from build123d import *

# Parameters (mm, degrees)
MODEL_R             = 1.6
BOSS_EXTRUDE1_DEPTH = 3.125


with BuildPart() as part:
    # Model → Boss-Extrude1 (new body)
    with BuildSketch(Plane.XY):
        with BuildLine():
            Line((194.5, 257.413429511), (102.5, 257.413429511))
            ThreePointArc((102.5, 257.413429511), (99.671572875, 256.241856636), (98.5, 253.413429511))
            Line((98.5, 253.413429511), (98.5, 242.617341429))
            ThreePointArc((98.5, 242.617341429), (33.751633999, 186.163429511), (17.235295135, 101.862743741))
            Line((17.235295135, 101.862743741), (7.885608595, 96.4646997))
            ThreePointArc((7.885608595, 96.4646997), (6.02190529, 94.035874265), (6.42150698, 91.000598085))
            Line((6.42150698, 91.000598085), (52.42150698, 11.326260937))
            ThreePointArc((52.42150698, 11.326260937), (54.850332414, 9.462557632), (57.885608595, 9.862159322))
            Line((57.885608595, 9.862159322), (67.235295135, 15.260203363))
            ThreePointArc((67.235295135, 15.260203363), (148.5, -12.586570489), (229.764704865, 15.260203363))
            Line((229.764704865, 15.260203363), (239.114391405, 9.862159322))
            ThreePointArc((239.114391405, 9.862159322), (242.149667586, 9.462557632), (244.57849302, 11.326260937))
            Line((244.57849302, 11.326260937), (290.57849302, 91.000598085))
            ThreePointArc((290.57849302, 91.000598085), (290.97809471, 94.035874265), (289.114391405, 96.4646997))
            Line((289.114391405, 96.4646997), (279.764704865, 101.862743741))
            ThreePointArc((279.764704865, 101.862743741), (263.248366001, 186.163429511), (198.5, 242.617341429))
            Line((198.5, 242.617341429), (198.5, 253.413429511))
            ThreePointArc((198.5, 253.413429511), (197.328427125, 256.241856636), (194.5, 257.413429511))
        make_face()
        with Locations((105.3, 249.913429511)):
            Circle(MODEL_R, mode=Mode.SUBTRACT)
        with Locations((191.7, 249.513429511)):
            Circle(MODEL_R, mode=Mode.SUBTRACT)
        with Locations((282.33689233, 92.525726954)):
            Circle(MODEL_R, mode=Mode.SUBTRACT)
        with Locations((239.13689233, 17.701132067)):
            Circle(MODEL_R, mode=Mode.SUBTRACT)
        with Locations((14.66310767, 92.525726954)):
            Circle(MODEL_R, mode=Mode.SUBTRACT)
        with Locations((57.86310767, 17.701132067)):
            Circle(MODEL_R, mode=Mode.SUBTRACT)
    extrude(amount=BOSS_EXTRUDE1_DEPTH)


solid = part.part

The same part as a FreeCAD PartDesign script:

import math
import FreeCAD as App
import Part
import Sketcher
Q = App.Units.Quantity

doc = App.newDocument("Part")
body = doc.addObject("PartDesign::Body", "Body")

# Sketch on XY plane
sketch1 = body.newObject("Sketcher::SketchObject", "Sketch")
sketch1.AttachmentSupport = (doc.getObject("XY_Plane"), [""])
sketch1.MapMode = "FlatFace"
sketch1.addGeometry([
    Part.LineSegment(App.Vector(194.5, 257.4, 0), App.Vector(102.5, 257.4, 0)),  # 0
    Part.ArcOfCircle(Part.Circle(App.Vector(102.5, 253.4, 0), App.Vector(0, 0, 1), 4), math.radians(90), math.radians(180)),  # 1
    Part.LineSegment(App.Vector(98.5, 253.4, 0), App.Vector(98.5, 242.6, 0)),  # 2
    Part.ArcOfCircle(Part.Circle(App.Vector(148.5, 119.9, 0), App.Vector(0, 0, 1), 132.5), math.radians(112), math.radians(188)),  # 3
    Part.LineSegment(App.Vector(17.2, 101.9, 0), App.Vector(7.9, 96.5, 0)),  # 4
    Part.ArcOfCircle(Part.Circle(App.Vector(9.9, 93, 0), App.Vector(0, 0, 1), 4), math.radians(120), math.radians(210)),  # 5
    Part.LineSegment(App.Vector(6.4, 91, 0), App.Vector(52.4, 11.3, 0)),  # 6
    Part.ArcOfCircle(Part.Circle(App.Vector(55.9, 13.3, 0), App.Vector(0, 0, 1), 4), math.radians(-150), math.radians(-60)),  # 7
    Part.LineSegment(App.Vector(57.9, 9.9, 0), App.Vector(67.2, 15.3, 0)),  # 8
    Part.ArcOfCircle(Part.Circle(App.Vector(148.5, 119.9, 0), App.Vector(0, 0, 1), 132.5), math.radians(-128), math.radians(-52)),  # 9
    Part.LineSegment(App.Vector(229.8, 15.3, 0), App.Vector(239.1, 9.9, 0)),  # 10
    Part.ArcOfCircle(Part.Circle(App.Vector(241.1, 13.3, 0), App.Vector(0, 0, 1), 4), math.radians(-120), math.radians(-30)),  # 11
    Part.LineSegment(App.Vector(244.6, 11.3, 0), App.Vector(290.6, 91, 0)),  # 12
    Part.ArcOfCircle(Part.Circle(App.Vector(287.1, 93, 0), App.Vector(0, 0, 1), 4), math.radians(-30), math.radians(60)),  # 13
    Part.LineSegment(App.Vector(289.1, 96.5, 0), App.Vector(279.8, 101.9, 0)),  # 14
    Part.ArcOfCircle(Part.Circle(App.Vector(148.5, 119.9, 0), App.Vector(0, 0, 1), 132.5), math.radians(-8), math.radians(68)),  # 15
    Part.LineSegment(App.Vector(198.5, 242.6, 0), App.Vector(198.5, 253.4, 0)),  # 16
    Part.ArcOfCircle(Part.Circle(App.Vector(194.5, 253.4, 0), App.Vector(0, 0, 1), 4), math.radians(0), math.radians(90)),  # 17
    Part.Circle(App.Vector(57.9, 17.7, 0), App.Vector(0, 0, 1), 1.6),  # 18
    Part.Circle(App.Vector(14.7, 92.5, 0), App.Vector(0, 0, 1), 1.6),  # 19
    Part.Circle(App.Vector(239.1, 17.7, 0), App.Vector(0, 0, 1), 1.6),  # 20
    Part.Circle(App.Vector(282.3, 92.5, 0), App.Vector(0, 0, 1), 1.6),  # 21
    Part.Circle(App.Vector(105.3, 249.9, 0), App.Vector(0, 0, 1), 1.6),  # 22
    Part.Circle(App.Vector(191.7, 249.5, 0), App.Vector(0, 0, 1), 1.6),  # 23
], False)
sketch1.addConstraint([
    Sketcher.Constraint("Tangent", 0, 2, 1, 1),
    Sketcher.Constraint("Tangent", 1, 2, 2, 1),
    Sketcher.Constraint("Coincident", 2, 2, 3, 1),
    Sketcher.Constraint("Coincident", 3, 2, 4, 1),
    Sketcher.Constraint("Tangent", 4, 2, 5, 1),
    Sketcher.Constraint("Tangent", 5, 2, 6, 1),
    Sketcher.Constraint("Tangent", 6, 2, 7, 1),
    Sketcher.Constraint("Tangent", 7, 2, 8, 1),
    Sketcher.Constraint("Coincident", 8, 2, 9, 1),
    Sketcher.Constraint("Coincident", 9, 2, 10, 1),
    Sketcher.Constraint("Tangent", 10, 2, 11, 1),
    Sketcher.Constraint("Tangent", 11, 2, 12, 1),
    Sketcher.Constraint("Tangent", 12, 2, 13, 1),
    Sketcher.Constraint("Tangent", 13, 2, 14, 1),
    Sketcher.Constraint("Coincident", 14, 2, 15, 1),
    Sketcher.Constraint("Coincident", 15, 2, 16, 1),
    Sketcher.Constraint("Tangent", 16, 2, 17, 1),
    Sketcher.Constraint("Tangent", 17, 2, 0, 1),
    Sketcher.Constraint("Horizontal", 0),
    Sketcher.Constraint("Vertical", 2),
    Sketcher.Constraint("Vertical", 16),
    Sketcher.Constraint("Coincident", 9, 3, 3, 3),
    Sketcher.Constraint("Coincident", 15, 3, 3, 3),
    Sketcher.Constraint("Equal", 1, 5),
    Sketcher.Constraint("Equal", 5, 7),
    Sketcher.Constraint("Equal", 3, 9),
    Sketcher.Constraint("Equal", 7, 11),
    Sketcher.Constraint("Equal", 11, 13),
    Sketcher.Constraint("Equal", 9, 15),
    Sketcher.Constraint("Equal", 13, 17),
    Sketcher.Constraint("Equal", 18, 19),
    Sketcher.Constraint("Equal", 19, 20),
    Sketcher.Constraint("Equal", 20, 21),
    Sketcher.Constraint("Equal", 21, 22),
    Sketcher.Constraint("Equal", 22, 23),
    Sketcher.Constraint("Perpendicular", 4, 6),
    Sketcher.Constraint("Perpendicular", 6, 8),
    Sketcher.Constraint("Perpendicular", 10, 12),
    Sketcher.Constraint("Perpendicular", 12, 14),
    Sketcher.Constraint("Horizontal", 7, 3, 11, 3),
    Sketcher.Constraint("Horizontal", 5, 3, 13, 3),
    Sketcher.Constraint("Horizontal", 18, 3, 20, 3),
    Sketcher.Constraint("Horizontal", 19, 3, 21, 3),
    Sketcher.Constraint("Horizontal", 8, 2, 9, 2),
    Sketcher.Constraint("Horizontal", 7, 2, 10, 2),
    Sketcher.Constraint("Horizontal", 2, 2, 15, 2),
    Sketcher.Constraint("Equal", 4, 8),
    Sketcher.Constraint("Radius", 1, Q("4 mm")),
    Sketcher.Constraint("Diameter", 18, Q("3.2 mm")),
    Sketcher.Constraint("Radius", 3, Q("132.5 mm")),
    Sketcher.Constraint("DistanceX", 0, 2, 0, 1, Q("92 mm")),
    Sketcher.Constraint("Angle", 4, Q("-150 deg")),
    Sketcher.Constraint("Distance", 6, Q("92 mm")),
    Sketcher.Constraint("DistanceY", 9, 3, 22, 3, Q("130 mm")),
    Sketcher.Constraint("DistanceX", -1, 1, 1, 3, Q("102.5 mm")),
    Sketcher.Constraint("DistanceX", -1, 1, 22, 3, Q("105.3 mm")),
    Sketcher.Constraint("DistanceX", -1, 1, 23, 3, Q("191.7 mm")),
    Sketcher.Constraint("DistanceY", 3, 3, 1, 3, Q("133.5 mm")),
    Sketcher.Constraint("DistanceX", 19, 3, 18, 3, Q("43.2 mm")),
    Sketcher.Constraint("DistanceX", 20, 3, 21, 3, Q("43.2 mm")),
    Sketcher.Constraint("DistanceY", 23, 3, 17, 3, Q("3.9 mm")),
    Sketcher.Constraint("DistanceY", -1, 1, 5, 3, Q("93.000598 mm")),
    Sketcher.Constraint("DistanceX", 7, 3, 18, 3, Q("1.977499 mm")),
    Sketcher.Constraint("DistanceX", 20, 3, 11, 3, Q("1.977499 mm")),
    Sketcher.Constraint("Distance", 4, Q("10.796088 mm")),
    Sketcher.Constraint("DistanceY", 7, 3, 18, 3, Q("4.374871 mm")),
    Sketcher.Constraint("DistanceY", 19, 3, 5, 3, Q("0.474871 mm")),
])
pad1 = body.newObject("PartDesign::Pad", "Pad")
pad1.Profile = sketch1
pad1.Length = 3.125

doc.recompute()
